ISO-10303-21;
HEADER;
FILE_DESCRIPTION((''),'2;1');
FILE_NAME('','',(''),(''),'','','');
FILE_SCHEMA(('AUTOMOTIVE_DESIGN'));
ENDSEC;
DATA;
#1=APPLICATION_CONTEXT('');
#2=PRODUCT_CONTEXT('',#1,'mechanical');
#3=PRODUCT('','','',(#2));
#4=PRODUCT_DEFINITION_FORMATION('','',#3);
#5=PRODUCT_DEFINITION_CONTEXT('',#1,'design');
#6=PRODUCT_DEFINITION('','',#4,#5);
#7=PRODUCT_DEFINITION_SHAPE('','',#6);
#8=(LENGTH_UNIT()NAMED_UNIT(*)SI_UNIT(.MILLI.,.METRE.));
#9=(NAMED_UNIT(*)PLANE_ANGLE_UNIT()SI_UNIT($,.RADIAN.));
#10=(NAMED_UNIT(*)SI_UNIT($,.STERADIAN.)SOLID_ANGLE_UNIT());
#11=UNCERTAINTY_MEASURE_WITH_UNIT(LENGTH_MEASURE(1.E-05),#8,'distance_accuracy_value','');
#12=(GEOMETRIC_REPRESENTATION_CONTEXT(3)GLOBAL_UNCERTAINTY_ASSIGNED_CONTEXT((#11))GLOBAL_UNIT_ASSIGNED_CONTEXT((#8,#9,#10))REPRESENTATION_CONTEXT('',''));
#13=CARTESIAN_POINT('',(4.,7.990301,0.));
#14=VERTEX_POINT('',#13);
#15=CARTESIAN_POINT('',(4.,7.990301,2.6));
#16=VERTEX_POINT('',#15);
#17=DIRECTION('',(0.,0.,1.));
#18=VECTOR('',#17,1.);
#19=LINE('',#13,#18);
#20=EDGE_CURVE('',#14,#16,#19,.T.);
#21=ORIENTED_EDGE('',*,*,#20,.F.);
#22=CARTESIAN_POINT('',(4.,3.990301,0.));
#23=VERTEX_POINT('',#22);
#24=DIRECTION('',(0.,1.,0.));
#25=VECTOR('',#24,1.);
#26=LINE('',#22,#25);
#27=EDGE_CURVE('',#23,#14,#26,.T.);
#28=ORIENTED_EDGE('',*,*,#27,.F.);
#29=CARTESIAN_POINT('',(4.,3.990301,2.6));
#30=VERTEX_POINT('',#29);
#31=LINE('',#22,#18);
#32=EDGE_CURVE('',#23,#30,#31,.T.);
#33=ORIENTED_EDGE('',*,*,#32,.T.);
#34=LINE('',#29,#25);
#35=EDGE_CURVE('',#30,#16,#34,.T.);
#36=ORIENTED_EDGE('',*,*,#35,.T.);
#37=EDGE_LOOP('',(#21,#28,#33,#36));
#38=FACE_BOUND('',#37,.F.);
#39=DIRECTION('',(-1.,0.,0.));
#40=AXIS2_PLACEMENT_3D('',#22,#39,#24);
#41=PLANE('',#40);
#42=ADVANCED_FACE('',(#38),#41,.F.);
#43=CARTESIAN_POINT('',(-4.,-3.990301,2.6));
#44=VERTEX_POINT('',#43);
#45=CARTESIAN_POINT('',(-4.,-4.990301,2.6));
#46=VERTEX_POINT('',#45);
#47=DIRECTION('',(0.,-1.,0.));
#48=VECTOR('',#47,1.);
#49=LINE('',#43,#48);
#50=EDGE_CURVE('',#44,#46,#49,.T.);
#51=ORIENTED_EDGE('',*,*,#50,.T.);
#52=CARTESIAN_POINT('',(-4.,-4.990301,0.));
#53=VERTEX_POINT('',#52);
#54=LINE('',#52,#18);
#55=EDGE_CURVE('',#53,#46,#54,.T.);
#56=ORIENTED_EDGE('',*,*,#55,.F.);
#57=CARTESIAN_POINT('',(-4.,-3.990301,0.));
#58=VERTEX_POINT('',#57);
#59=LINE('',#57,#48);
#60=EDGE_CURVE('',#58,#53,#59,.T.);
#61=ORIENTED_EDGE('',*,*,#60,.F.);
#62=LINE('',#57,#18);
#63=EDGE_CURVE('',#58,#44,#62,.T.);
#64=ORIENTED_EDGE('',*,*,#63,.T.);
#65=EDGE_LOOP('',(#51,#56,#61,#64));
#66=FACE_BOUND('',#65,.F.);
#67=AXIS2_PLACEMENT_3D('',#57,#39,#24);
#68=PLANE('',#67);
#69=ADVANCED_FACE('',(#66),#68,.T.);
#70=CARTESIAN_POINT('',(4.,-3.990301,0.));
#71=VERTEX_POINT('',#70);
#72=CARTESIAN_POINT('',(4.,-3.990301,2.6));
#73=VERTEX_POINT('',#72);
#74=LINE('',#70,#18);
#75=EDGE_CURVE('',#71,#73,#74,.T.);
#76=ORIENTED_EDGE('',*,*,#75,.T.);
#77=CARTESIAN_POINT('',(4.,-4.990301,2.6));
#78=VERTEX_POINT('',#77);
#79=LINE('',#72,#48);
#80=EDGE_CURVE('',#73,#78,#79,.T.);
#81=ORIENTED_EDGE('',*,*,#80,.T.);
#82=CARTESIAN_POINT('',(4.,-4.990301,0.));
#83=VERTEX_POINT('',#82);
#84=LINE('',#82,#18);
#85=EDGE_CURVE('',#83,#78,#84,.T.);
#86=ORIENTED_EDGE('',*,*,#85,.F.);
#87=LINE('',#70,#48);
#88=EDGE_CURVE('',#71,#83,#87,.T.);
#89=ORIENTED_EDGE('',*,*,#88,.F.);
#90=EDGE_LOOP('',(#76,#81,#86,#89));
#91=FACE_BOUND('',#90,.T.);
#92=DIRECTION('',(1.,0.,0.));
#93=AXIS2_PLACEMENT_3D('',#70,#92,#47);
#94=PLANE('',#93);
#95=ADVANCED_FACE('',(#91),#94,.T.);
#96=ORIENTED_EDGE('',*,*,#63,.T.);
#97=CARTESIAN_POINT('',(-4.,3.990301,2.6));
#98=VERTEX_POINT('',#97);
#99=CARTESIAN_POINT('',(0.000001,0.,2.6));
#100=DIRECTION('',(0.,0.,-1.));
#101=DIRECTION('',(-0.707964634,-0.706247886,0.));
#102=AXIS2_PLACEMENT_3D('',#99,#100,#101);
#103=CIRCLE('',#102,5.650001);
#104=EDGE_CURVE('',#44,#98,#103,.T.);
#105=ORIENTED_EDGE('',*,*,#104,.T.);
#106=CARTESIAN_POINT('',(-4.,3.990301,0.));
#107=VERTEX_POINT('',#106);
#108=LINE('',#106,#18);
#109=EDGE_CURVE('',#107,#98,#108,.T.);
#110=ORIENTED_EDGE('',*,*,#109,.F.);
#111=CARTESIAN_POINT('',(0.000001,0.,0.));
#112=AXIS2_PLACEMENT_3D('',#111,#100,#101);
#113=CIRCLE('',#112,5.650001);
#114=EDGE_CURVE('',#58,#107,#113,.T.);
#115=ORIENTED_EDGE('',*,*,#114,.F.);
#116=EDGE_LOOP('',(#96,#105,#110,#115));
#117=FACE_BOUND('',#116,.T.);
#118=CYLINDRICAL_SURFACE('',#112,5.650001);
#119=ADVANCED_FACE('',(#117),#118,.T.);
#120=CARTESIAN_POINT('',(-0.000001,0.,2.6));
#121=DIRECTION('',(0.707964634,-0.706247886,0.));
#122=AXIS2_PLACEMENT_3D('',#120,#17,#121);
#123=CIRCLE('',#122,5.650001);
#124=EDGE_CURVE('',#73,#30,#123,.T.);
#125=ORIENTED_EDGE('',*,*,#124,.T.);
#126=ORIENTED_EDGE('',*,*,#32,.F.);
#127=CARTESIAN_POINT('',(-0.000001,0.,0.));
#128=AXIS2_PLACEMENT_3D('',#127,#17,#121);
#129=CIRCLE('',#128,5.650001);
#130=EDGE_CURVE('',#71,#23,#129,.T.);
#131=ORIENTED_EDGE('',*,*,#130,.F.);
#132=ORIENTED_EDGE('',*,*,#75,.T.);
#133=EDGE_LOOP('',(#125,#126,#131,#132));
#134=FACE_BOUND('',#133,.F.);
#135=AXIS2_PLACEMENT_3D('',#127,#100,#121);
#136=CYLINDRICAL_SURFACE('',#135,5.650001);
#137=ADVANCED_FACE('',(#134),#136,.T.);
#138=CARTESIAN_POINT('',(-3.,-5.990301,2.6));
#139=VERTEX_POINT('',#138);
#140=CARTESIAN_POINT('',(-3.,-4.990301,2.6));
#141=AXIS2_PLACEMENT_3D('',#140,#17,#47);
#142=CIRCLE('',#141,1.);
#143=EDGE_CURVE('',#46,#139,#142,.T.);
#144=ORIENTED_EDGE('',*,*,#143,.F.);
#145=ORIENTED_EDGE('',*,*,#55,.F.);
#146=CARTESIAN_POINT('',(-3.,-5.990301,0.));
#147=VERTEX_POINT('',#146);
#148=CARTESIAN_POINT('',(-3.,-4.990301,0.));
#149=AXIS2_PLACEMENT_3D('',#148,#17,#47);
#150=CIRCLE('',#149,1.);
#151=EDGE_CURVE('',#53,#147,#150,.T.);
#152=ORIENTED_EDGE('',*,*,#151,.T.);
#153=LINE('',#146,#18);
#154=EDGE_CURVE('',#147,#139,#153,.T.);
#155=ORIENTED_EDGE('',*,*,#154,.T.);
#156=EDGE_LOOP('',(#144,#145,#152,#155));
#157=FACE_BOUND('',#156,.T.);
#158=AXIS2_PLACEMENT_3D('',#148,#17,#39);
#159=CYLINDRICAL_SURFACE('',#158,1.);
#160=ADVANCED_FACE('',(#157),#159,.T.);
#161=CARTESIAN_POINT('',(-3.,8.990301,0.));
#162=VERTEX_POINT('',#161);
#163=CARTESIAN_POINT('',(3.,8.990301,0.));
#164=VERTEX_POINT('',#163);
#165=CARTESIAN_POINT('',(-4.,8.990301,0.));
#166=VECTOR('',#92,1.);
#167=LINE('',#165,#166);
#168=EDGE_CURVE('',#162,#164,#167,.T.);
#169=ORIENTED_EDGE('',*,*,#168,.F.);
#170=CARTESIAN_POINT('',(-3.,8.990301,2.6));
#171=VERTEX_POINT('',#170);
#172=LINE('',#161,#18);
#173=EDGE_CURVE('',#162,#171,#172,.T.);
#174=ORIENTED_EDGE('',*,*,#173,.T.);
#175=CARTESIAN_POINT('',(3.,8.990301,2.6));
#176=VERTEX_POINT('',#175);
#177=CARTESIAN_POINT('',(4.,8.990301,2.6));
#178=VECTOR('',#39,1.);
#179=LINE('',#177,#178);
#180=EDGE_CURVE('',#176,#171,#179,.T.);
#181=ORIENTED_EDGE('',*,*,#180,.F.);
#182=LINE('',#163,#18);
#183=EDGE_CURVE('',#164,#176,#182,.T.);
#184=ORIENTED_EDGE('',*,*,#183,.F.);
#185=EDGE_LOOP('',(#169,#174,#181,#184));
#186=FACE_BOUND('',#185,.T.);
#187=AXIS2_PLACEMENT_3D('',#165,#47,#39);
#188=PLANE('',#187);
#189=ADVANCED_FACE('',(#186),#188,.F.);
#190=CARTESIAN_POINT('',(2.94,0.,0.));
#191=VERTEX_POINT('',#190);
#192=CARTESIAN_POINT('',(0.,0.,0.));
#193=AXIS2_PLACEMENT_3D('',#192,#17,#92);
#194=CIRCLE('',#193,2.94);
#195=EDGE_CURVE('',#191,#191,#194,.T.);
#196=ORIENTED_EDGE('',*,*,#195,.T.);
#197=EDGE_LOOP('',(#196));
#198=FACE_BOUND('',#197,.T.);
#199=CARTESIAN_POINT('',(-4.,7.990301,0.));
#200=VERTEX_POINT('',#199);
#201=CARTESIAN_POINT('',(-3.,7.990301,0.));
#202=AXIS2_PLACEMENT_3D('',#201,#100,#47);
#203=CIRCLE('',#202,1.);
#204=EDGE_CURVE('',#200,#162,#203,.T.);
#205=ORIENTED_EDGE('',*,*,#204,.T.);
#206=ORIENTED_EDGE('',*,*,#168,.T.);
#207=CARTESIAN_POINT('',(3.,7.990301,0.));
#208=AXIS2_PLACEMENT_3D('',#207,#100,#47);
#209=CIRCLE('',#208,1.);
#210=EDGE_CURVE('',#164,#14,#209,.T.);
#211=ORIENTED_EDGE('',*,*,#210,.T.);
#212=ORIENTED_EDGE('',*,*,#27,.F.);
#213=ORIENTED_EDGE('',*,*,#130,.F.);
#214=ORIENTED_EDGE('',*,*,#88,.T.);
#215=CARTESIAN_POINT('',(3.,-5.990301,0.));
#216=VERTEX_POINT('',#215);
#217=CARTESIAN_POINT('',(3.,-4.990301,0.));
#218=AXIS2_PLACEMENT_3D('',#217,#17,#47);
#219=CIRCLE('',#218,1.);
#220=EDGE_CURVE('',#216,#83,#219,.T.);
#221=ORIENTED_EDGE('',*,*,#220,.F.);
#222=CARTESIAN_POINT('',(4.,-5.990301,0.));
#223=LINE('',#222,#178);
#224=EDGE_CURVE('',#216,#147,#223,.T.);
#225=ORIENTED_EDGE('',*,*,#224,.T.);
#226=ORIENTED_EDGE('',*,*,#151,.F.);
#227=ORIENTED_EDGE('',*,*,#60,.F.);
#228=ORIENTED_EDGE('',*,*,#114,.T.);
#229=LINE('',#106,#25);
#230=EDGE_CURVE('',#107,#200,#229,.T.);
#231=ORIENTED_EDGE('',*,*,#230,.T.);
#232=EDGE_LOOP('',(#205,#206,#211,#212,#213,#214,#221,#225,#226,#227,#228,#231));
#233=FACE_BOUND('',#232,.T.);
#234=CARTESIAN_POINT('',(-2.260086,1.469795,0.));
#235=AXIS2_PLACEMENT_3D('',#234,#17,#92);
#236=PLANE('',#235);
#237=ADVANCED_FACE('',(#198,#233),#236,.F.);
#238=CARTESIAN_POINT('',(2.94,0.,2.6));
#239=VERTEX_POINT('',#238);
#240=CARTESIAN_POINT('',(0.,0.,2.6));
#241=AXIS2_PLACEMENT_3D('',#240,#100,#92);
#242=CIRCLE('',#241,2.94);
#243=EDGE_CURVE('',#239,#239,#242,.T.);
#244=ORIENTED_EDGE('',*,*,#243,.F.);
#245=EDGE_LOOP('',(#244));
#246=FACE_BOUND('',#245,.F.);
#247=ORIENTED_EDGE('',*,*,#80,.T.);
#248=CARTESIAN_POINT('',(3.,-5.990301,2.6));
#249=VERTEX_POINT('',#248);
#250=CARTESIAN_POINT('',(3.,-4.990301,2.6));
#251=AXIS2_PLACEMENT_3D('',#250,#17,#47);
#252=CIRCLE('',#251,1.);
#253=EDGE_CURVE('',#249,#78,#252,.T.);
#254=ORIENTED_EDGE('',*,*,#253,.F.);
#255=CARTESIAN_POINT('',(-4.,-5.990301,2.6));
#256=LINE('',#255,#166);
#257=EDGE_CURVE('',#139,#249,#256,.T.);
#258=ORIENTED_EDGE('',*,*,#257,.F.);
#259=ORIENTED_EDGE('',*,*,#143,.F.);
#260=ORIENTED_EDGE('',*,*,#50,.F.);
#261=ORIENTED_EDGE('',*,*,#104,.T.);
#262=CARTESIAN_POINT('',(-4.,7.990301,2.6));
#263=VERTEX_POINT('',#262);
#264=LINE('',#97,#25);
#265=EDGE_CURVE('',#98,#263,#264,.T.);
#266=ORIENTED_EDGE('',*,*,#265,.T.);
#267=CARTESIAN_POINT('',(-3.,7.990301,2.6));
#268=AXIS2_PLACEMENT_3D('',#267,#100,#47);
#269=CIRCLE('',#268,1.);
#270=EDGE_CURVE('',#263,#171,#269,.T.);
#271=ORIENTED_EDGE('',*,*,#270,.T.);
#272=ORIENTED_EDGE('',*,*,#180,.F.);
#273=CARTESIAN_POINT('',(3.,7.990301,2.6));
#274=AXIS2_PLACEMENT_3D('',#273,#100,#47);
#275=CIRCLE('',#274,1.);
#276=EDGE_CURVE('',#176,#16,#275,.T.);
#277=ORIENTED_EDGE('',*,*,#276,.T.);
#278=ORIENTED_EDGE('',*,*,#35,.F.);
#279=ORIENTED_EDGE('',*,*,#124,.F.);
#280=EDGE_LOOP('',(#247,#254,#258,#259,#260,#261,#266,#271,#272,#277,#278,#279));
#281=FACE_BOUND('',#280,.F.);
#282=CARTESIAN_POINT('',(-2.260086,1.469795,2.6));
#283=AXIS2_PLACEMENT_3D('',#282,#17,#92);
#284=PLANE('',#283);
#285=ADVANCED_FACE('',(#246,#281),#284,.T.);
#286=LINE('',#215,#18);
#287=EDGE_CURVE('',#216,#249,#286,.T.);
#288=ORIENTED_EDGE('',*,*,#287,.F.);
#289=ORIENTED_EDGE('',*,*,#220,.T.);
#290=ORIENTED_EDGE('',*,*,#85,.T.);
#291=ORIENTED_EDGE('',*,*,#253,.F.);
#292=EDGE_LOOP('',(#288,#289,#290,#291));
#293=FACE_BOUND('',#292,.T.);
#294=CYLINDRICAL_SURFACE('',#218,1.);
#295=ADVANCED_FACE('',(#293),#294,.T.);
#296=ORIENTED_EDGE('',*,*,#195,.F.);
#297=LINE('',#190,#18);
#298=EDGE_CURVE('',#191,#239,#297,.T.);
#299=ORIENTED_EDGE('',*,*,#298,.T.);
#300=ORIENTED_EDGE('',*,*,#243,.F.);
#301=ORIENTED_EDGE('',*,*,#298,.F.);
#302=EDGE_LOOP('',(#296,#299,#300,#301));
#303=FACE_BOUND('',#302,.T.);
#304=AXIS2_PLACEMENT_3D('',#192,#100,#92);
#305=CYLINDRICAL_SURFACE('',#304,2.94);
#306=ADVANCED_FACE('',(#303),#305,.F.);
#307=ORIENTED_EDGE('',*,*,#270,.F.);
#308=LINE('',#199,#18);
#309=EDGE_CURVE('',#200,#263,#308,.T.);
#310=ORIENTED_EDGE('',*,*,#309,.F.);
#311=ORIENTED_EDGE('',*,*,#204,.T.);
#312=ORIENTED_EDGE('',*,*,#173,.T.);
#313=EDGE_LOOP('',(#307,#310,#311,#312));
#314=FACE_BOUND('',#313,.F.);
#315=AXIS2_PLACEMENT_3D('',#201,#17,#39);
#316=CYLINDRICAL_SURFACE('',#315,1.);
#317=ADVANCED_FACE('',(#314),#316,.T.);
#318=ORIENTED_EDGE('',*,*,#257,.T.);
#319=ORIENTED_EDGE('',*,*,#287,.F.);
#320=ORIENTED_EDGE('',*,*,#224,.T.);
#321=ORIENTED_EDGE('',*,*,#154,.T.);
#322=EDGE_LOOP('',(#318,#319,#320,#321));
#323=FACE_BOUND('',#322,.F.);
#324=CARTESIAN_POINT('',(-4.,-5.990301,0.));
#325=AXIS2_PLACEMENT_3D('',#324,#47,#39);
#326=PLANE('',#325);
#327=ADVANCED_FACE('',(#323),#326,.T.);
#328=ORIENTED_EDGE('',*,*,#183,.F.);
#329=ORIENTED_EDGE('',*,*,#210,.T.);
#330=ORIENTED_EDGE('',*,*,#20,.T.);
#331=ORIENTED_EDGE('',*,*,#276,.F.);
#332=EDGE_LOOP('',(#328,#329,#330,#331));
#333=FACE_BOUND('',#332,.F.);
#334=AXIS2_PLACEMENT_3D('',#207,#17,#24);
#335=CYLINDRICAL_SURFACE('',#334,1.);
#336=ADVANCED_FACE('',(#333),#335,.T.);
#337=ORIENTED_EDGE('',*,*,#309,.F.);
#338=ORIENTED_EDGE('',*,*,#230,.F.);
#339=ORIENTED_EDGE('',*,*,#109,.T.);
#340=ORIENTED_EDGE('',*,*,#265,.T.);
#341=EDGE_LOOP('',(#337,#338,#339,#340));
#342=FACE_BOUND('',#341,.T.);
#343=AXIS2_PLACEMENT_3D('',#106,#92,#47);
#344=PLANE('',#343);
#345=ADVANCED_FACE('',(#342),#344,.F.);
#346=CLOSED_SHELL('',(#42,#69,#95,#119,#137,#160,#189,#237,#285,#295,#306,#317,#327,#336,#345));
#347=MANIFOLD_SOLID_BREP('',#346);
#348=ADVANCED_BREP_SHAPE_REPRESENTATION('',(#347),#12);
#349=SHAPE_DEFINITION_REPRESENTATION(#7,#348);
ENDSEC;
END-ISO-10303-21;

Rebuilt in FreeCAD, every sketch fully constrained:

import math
import FreeCAD as App
import Part
import Sketcher
Q = App.Units.Quantity


def edges_at(feature, points):
    """Names of the edges that pass closest to the given points."""
    edges = feature.Shape.Edges
    near = lambda p: min(range(len(edges)), key=lambda i: edges[i].distToShape(Part.Vertex(*p))[0])
    return sorted({f"Edge{near(p) + 1}" for p in points})

doc = App.newDocument("Part")
params = doc.addObject("Spreadsheet::Sheet", "Params")
for row, (alias, value) in enumerate([
    ("sketch1_width", "4 mm"),
    ("sketch1_height", "5 mm"),
    ("sketch1_height2", "2 mm"),
    ("sketch1_radius", "5.650001 mm"),
    ("pad1_length", "2.6 mm"),
    ("sketch2_diameter", "5.88 mm"),
    ("fillet_radius", "1 mm"),
], start=1):
    params.set(f"A{row}", alias)
    params.set(f"B{row}", "=" + value)
    params.setAlias(f"B{row}", alias)

body = doc.addObject("PartDesign::Body", "Body")

sketch1 = doc.addObject("Sketcher::SketchObject", "Sketch")
body.addObject(sketch1)
sketch1.AttachmentSupport = (doc.XY_Plane, [""])
sketch1.MapMode = "FlatFace"
sketch1.addGeometry([
    Part.ArcOfCircle(Part.Circle(App.Vector(0, 0, 0), App.Vector(0, 0, 1), 5.7), math.radians(-45), math.radians(45)),
    Part.LineSegment(App.Vector(4, 4, 0), App.Vector(4, 9, 0)),
    Part.LineSegment(App.Vector(4, 9, 0), App.Vector(0, 9, 0)),
    Part.LineSegment(App.Vector(0, 9, 0), App.Vector(0, -6, 0)),
    Part.LineSegment(App.Vector(0, -6, 0), App.Vector(4, -6, 0)),
    Part.LineSegment(App.Vector(4, -6, 0), App.Vector(4, -4, 0)),
], False)
sketch1.addConstraint([
    Sketcher.Constraint("Coincident", 0, 2, 1, 1),
    Sketcher.Constraint("Coincident", 1, 2, 2, 1),
    Sketcher.Constraint("Coincident", 2, 2, 3, 1),
    Sketcher.Constraint("Coincident", 3, 2, 4, 1),
    Sketcher.Constraint("Coincident", 4, 2, 5, 1),
    Sketcher.Constraint("Coincident", 5, 2, 0, 1),
    Sketcher.Constraint("Vertical", 1),
    Sketcher.Constraint("Horizontal", 2),
    Sketcher.Constraint("Vertical", 3),
    Sketcher.Constraint("Horizontal", 4),
    Sketcher.Constraint("Vertical", 5),
    Sketcher.Constraint("Coincident", 0, 3, -1, 1),
    Sketcher.Constraint("PointOnObject", 2, 2, -2),
    Sketcher.Constraint("Vertical", 1, 2, 4, 2),
    Sketcher.Constraint("DistanceX", 2, 2, 2, 1, Q("4 mm")),
    Sketcher.Constraint("DistanceY", 1, 1, 1, 2, Q("5 mm")),
    Sketcher.Constraint("DistanceY", 5, 1, 5, 2, Q("2 mm")),
    Sketcher.Constraint("Radius", 0, Q("5.650001 mm")),
])
sketch1.setExpression("Constraints[14]", "Params.sketch1_width")
sketch1.setExpression("Constraints[15]", "Params.sketch1_height")
sketch1.setExpression("Constraints[16]", "Params.sketch1_height2")
sketch1.setExpression("Constraints[17]", "Params.sketch1_radius")
pad1 = doc.addObject("PartDesign::Pad", "Pad")
body.addObject(pad1)
pad1.Profile = sketch1
pad1.setExpression("Length", "Params.pad1_length")
doc.recompute()

mirrored = doc.addObject("PartDesign::Mirrored", "Mirrored")
body.addObject(mirrored)
mirrored.Originals = [pad1]
mirrored.MirrorPlane = (doc.YZ_Plane, [""])
body.Tip = mirrored

sketch2 = doc.addObject("Sketcher::SketchObject", "Sketch001")
body.addObject(sketch2)
sketch2.AttachmentSupport = (doc.XY_Plane, [""])
sketch2.MapMode = "FlatFace"
sketch2.addGeometry(Part.Circle(App.Vector(0, 0, 0), App.Vector(0, 0, 1), 2.9), False)
sketch2.addConstraint([
    Sketcher.Constraint("Coincident", 0, 3, -1, 1),
    Sketcher.Constraint("Diameter", 0, Q("5.88 mm")),
])
sketch2.setExpression("Constraints[1]", "Params.sketch2_diameter")
pocket1 = doc.addObject("PartDesign::Pocket", "Pocket")
body.addObject(pocket1)
pocket1.Profile = sketch2
pocket1.Type = "ThroughAll"
pocket1.Reversed = True
doc.recompute()

fillet = doc.addObject("PartDesign::Fillet", "Fillet")
body.addObject(fillet)
fillet.Base = (pocket1, edges_at(pocket1, [
    (-4, 8.99, 1.3),
    (-4, -5.99, 1.3),
    (4, -5.99, 1.3),
    (4, 8.99, 1.3),
]))
fillet.setExpression("Radius", "Params.fillet_radius")

doc.recompute()
